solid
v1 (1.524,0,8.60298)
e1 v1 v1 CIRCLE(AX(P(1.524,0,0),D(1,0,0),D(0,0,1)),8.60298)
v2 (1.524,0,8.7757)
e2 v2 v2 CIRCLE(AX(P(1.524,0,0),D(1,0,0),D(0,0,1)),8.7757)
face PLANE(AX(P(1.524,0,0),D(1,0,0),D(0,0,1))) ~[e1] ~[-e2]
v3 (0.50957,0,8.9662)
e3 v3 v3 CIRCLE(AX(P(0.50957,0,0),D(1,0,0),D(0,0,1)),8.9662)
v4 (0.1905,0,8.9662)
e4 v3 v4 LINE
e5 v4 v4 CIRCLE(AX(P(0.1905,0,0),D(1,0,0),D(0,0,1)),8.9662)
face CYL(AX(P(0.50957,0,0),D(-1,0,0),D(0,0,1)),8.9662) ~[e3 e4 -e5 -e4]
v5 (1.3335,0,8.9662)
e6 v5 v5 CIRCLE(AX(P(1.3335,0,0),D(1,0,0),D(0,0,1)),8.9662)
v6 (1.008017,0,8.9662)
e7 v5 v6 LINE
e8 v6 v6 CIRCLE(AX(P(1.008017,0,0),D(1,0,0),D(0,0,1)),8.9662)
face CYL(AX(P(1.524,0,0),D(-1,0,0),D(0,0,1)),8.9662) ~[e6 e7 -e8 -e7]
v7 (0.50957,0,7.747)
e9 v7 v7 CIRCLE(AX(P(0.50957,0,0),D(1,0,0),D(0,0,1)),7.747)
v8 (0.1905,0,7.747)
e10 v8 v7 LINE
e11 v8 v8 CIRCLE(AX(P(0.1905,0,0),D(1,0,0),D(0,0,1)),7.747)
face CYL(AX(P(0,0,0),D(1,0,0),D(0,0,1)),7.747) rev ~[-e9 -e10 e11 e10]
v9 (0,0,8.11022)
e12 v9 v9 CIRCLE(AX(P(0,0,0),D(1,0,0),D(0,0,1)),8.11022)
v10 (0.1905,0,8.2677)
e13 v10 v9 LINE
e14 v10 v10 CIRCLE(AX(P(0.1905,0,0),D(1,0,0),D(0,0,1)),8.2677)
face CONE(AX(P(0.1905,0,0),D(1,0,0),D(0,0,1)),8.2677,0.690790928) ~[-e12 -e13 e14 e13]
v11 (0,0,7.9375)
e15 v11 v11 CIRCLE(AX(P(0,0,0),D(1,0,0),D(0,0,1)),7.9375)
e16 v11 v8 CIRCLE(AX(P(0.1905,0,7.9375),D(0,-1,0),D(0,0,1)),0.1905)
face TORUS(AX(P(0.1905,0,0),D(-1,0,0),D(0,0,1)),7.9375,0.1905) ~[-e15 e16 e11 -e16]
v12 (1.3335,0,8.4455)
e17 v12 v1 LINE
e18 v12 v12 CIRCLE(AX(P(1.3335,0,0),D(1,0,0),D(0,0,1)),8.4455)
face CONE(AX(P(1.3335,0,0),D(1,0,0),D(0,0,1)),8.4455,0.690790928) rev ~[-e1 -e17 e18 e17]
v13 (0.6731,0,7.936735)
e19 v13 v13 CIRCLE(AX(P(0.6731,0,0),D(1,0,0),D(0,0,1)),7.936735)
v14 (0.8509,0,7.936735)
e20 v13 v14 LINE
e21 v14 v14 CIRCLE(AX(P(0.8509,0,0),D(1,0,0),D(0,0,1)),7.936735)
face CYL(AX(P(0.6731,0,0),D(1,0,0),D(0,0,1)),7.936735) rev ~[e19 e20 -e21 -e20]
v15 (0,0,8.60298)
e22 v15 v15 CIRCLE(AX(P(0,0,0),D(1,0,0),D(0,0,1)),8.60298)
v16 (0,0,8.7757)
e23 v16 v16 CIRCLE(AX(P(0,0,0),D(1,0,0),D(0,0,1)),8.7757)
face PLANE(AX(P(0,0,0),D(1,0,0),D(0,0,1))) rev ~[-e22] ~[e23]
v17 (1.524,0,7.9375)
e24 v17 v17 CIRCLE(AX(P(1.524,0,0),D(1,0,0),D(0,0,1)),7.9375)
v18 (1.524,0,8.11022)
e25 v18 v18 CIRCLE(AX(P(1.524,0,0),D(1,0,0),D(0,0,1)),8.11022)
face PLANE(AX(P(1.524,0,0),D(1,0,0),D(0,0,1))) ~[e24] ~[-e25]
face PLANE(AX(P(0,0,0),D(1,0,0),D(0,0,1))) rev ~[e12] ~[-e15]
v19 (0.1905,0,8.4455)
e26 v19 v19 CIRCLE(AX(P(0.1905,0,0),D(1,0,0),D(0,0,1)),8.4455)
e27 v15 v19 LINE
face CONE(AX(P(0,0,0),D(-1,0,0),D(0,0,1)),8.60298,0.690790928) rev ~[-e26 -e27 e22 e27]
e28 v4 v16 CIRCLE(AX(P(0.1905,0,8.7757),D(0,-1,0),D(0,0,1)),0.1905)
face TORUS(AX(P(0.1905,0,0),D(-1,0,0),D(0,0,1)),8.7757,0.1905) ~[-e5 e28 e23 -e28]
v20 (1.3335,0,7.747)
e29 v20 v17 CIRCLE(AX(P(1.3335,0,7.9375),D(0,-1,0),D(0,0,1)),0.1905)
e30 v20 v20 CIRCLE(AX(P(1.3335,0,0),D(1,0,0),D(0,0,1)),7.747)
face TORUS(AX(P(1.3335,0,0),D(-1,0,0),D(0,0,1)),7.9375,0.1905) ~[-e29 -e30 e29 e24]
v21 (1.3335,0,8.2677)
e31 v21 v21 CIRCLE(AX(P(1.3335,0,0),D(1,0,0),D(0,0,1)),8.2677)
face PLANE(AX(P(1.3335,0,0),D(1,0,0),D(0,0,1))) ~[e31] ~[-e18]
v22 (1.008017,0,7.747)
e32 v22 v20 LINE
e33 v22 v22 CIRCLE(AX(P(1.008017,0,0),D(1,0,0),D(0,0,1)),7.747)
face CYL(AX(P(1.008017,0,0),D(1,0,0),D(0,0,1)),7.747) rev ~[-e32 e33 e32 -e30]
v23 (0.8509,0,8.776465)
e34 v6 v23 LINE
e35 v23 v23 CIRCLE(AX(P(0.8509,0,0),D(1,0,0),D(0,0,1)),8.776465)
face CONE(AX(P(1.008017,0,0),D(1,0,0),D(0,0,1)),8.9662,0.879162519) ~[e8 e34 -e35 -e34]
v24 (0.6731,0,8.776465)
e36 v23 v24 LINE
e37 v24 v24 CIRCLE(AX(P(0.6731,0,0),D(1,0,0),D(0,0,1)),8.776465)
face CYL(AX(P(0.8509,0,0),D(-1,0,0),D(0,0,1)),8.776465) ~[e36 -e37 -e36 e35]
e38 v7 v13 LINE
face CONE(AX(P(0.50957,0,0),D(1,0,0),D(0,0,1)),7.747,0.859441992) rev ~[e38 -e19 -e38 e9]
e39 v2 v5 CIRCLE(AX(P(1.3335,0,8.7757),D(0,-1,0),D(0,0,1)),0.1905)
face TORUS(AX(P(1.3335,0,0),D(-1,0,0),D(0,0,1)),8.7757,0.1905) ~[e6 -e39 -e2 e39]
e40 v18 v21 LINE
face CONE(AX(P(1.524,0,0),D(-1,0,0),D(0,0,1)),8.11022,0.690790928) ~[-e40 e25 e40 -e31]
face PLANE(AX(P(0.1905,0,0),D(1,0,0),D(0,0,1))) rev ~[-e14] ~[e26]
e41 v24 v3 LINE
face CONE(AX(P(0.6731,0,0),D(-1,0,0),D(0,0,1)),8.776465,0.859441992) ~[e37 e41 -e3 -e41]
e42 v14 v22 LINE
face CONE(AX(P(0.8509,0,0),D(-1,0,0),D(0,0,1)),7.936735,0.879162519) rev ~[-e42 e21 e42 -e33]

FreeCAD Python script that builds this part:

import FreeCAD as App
import Part
import Sketcher
Q = App.Units.Quantity


def edges_at(feature, points):
    """Names of the edges that pass closest to the given points."""
    edges = feature.Shape.Edges
    near = lambda p: min(range(len(edges)), key=lambda i: edges[i].distToShape(Part.Vertex(*p))[0])
    return sorted({f"Edge{near(p) + 1}" for p in points})

doc = App.newDocument("Part")
body = doc.addObject("PartDesign::Body", "Body")

# Sketch on XZ plane
sketch1 = body.newObject("Sketcher::SketchObject", "Sketch")
sketch1.AttachmentSupport = (doc.getObject("XZ_Plane"), [""])
sketch1.MapMode = "FlatFace"
sketch1.addGeometry([
    Part.LineSegment(App.Vector(0, 8.11022, 0), App.Vector(0, 7.747, 0)),  # 0
    Part.LineSegment(App.Vector(0, 7.747, 0), App.Vector(0.50957, 7.747, 0)),  # 1
    Part.LineSegment(App.Vector(0.50957, 7.747, 0), App.Vector(0.6731, 7.936735, 0)),  # 2
    Part.LineSegment(App.Vector(0.6731, 7.936735, 0), App.Vector(0.8509, 7.936735, 0)),  # 3
    Part.LineSegment(App.Vector(0.8509, 7.936735, 0), App.Vector(1.008017, 7.747, 0)),  # 4
    Part.LineSegment(App.Vector(1.008017, 7.747, 0), App.Vector(1.524, 7.747, 0)),  # 5
    Part.LineSegment(App.Vector(1.524, 7.747, 0), App.Vector(1.524, 8.11022, 0)),  # 6
    Part.LineSegment(App.Vector(1.524, 8.11022, 0), App.Vector(1.3335, 8.2677, 0)),  # 7
    Part.LineSegment(App.Vector(1.3335, 8.2677, 0), App.Vector(1.3335, 8.4455, 0)),  # 8
    Part.LineSegment(App.Vector(1.3335, 8.4455, 0), App.Vector(1.524, 8.60298, 0)),  # 9
    Part.LineSegment(App.Vector(1.524, 8.60298, 0), App.Vector(1.524, 8.9662, 0)),  # 10
    Part.LineSegment(App.Vector(1.524, 8.9662, 0), App.Vector(1.008017, 8.9662, 0)),  # 11
    Part.LineSegment(App.Vector(1.008017, 8.9662, 0), App.Vector(0.8509, 8.776465, 0)),  # 12
    Part.LineSegment(App.Vector(0.8509, 8.776465, 0), App.Vector(0.6731, 8.776465, 0)),  # 13
    Part.LineSegment(App.Vector(0.6731, 8.776465, 0), App.Vector(0.50957, 8.9662, 0)),  # 14
    Part.LineSegment(App.Vector(0.50957, 8.9662, 0), App.Vector(0, 8.9662, 0)),  # 15
    Part.LineSegment(App.Vector(0, 8.9662, 0), App.Vector(0, 8.60298, 0)),  # 16
    Part.LineSegment(App.Vector(0, 8.60298, 0), App.Vector(0.1905, 8.4455, 0)),  # 17
    Part.LineSegment(App.Vector(0.1905, 8.4455, 0), App.Vector(0.1905, 8.2677, 0)),  # 18
    Part.LineSegment(App.Vector(0.1905, 8.2677, 0), App.Vector(0, 8.11022, 0)),  # 19
], False)
sketch1.addConstraint([
    Sketcher.Constraint("Coincident", 0, 2, 1, 1),
    Sketcher.Constraint("Coincident", 1, 2, 2, 1),
    Sketcher.Constraint("Coincident", 2, 2, 3, 1),
    Sketcher.Constraint("Coincident", 3, 2, 4, 1),
    Sketcher.Constraint("Coincident", 4, 2, 5, 1),
    Sketcher.Constraint("Coincident", 5, 2, 6, 1),
    Sketcher.Constraint("Coincident", 6, 2, 7, 1),
    Sketcher.Constraint("Coincident", 7, 2, 8, 1),
    Sketcher.Constraint("Coincident", 8, 2, 9, 1),
    Sketcher.Constraint("Coincident", 9, 2, 10, 1),
    Sketcher.Constraint("Coincident", 10, 2, 11, 1),
    Sketcher.Constraint("Coincident", 11, 2, 12, 1),
    Sketcher.Constraint("Coincident", 12, 2, 13, 1),
    Sketcher.Constraint("Coincident", 13, 2, 14, 1),
    Sketcher.Constraint("Coincident", 14, 2, 15, 1),
    Sketcher.Constraint("Coincident", 15, 2, 16, 1),
    Sketcher.Constraint("Coincident", 16, 2, 17, 1),
    Sketcher.Constraint("Coincident", 17, 2, 18, 1),
    Sketcher.Constraint("Coincident", 18, 2, 19, 1),
    Sketcher.Constraint("Coincident", 19, 2, 0, 1),
    Sketcher.Constraint("Vertical", 0),
    Sketcher.Constraint("Horizontal", 1),
    Sketcher.Constraint("Horizontal", 3),
    Sketcher.Constraint("Horizontal", 5),
    Sketcher.Constraint("Vertical", 6),
    Sketcher.Constraint("Vertical", 8),
    Sketcher.Constraint("Vertical", 10),
    Sketcher.Constraint("Horizontal", 11),
    Sketcher.Constraint("Horizontal", 13),
    Sketcher.Constraint("Horizontal", 15),
    Sketcher.Constraint("Vertical", 16),
    Sketcher.Constraint("Vertical", 18),
    Sketcher.Constraint("PointOnObject", 0, 2, -2),
    Sketcher.Constraint("PointOnObject", 15, 2, -2),
    Sketcher.Constraint("Parallel", 7, 17),
    Sketcher.Constraint("Parallel", 9, 19),
    Sketcher.Constraint("Horizontal", 1, 2, 4, 2),
    Sketcher.Constraint("Horizontal", 11, 2, 14, 2),
    Sketcher.Constraint("Horizontal", 9, 2, 16, 2),
    Sketcher.Constraint("Horizontal", 8, 2, 17, 2),
    Sketcher.Constraint("Horizontal", 7, 2, 18, 2),
    Sketcher.Constraint("Horizontal", 6, 2, 19, 2),
    Sketcher.Constraint("Vertical", 6, 2, 9, 2),
    Sketcher.Constraint("Vertical", 4, 2, 11, 2),
    Sketcher.Constraint("Vertical", 3, 2, 12, 2),
    Sketcher.Constraint("Vertical", 2, 2, 13, 2),
    Sketcher.Constraint("Vertical", 1, 2, 14, 2),
    Sketcher.Constraint("Equal", 13, 8),
    Sketcher.Constraint("Equal", 6, 10),
    Sketcher.Constraint("Equal", 4, 12),
    Sketcher.Constraint("DistanceX", 3, 1, 3, 2, Q("0.007 in")),
    Sketcher.Constraint("DistanceX", -1, 1, 5, 2, Q("0.06 in")),
    Sketcher.Constraint("DistanceY", 0, 2, 0, 1, Q("0.0143 in")),
    Sketcher.Constraint("DistanceY", -1, 1, 0, 2, Q("0.305 in")),
    Sketcher.Constraint("DistanceY", -1, 1, 10, 2, Q("0.353 in")),
    Sketcher.Constraint("DistanceX", 3, 2, 7, 2, Q("0.019 in")),
    Sketcher.Constraint("DistanceX", 17, 2, 13, 2, Q("0.019 in")),
    Sketcher.Constraint("DistanceX", 1, 1, 1, 2, 0.50957),
    Sketcher.Constraint("DistanceX", 5, 1, 5, 2, 0.515983),
    Sketcher.Constraint("DistanceY", 2, 2, 13, 2, 0.83973),
])
revolution = body.newObject("PartDesign::Revolution", "Revolution")
revolution.Profile = sketch1
revolution.ReferenceAxis = (sketch1, ["H_Axis"])
revolution.Angle = 360
doc.recompute()

fillet = body.newObject("PartDesign::Fillet", "Fillet")
fillet.Base = (revolution, edges_at(revolution, [
    (0, 0, -8.966),
    (1.524, 0, -8.966),
    (0, 0, -7.747),
    (1.524, 0, -7.747),
]))
fillet.Radius = Q("0.0075 in")

doc.recompute()
